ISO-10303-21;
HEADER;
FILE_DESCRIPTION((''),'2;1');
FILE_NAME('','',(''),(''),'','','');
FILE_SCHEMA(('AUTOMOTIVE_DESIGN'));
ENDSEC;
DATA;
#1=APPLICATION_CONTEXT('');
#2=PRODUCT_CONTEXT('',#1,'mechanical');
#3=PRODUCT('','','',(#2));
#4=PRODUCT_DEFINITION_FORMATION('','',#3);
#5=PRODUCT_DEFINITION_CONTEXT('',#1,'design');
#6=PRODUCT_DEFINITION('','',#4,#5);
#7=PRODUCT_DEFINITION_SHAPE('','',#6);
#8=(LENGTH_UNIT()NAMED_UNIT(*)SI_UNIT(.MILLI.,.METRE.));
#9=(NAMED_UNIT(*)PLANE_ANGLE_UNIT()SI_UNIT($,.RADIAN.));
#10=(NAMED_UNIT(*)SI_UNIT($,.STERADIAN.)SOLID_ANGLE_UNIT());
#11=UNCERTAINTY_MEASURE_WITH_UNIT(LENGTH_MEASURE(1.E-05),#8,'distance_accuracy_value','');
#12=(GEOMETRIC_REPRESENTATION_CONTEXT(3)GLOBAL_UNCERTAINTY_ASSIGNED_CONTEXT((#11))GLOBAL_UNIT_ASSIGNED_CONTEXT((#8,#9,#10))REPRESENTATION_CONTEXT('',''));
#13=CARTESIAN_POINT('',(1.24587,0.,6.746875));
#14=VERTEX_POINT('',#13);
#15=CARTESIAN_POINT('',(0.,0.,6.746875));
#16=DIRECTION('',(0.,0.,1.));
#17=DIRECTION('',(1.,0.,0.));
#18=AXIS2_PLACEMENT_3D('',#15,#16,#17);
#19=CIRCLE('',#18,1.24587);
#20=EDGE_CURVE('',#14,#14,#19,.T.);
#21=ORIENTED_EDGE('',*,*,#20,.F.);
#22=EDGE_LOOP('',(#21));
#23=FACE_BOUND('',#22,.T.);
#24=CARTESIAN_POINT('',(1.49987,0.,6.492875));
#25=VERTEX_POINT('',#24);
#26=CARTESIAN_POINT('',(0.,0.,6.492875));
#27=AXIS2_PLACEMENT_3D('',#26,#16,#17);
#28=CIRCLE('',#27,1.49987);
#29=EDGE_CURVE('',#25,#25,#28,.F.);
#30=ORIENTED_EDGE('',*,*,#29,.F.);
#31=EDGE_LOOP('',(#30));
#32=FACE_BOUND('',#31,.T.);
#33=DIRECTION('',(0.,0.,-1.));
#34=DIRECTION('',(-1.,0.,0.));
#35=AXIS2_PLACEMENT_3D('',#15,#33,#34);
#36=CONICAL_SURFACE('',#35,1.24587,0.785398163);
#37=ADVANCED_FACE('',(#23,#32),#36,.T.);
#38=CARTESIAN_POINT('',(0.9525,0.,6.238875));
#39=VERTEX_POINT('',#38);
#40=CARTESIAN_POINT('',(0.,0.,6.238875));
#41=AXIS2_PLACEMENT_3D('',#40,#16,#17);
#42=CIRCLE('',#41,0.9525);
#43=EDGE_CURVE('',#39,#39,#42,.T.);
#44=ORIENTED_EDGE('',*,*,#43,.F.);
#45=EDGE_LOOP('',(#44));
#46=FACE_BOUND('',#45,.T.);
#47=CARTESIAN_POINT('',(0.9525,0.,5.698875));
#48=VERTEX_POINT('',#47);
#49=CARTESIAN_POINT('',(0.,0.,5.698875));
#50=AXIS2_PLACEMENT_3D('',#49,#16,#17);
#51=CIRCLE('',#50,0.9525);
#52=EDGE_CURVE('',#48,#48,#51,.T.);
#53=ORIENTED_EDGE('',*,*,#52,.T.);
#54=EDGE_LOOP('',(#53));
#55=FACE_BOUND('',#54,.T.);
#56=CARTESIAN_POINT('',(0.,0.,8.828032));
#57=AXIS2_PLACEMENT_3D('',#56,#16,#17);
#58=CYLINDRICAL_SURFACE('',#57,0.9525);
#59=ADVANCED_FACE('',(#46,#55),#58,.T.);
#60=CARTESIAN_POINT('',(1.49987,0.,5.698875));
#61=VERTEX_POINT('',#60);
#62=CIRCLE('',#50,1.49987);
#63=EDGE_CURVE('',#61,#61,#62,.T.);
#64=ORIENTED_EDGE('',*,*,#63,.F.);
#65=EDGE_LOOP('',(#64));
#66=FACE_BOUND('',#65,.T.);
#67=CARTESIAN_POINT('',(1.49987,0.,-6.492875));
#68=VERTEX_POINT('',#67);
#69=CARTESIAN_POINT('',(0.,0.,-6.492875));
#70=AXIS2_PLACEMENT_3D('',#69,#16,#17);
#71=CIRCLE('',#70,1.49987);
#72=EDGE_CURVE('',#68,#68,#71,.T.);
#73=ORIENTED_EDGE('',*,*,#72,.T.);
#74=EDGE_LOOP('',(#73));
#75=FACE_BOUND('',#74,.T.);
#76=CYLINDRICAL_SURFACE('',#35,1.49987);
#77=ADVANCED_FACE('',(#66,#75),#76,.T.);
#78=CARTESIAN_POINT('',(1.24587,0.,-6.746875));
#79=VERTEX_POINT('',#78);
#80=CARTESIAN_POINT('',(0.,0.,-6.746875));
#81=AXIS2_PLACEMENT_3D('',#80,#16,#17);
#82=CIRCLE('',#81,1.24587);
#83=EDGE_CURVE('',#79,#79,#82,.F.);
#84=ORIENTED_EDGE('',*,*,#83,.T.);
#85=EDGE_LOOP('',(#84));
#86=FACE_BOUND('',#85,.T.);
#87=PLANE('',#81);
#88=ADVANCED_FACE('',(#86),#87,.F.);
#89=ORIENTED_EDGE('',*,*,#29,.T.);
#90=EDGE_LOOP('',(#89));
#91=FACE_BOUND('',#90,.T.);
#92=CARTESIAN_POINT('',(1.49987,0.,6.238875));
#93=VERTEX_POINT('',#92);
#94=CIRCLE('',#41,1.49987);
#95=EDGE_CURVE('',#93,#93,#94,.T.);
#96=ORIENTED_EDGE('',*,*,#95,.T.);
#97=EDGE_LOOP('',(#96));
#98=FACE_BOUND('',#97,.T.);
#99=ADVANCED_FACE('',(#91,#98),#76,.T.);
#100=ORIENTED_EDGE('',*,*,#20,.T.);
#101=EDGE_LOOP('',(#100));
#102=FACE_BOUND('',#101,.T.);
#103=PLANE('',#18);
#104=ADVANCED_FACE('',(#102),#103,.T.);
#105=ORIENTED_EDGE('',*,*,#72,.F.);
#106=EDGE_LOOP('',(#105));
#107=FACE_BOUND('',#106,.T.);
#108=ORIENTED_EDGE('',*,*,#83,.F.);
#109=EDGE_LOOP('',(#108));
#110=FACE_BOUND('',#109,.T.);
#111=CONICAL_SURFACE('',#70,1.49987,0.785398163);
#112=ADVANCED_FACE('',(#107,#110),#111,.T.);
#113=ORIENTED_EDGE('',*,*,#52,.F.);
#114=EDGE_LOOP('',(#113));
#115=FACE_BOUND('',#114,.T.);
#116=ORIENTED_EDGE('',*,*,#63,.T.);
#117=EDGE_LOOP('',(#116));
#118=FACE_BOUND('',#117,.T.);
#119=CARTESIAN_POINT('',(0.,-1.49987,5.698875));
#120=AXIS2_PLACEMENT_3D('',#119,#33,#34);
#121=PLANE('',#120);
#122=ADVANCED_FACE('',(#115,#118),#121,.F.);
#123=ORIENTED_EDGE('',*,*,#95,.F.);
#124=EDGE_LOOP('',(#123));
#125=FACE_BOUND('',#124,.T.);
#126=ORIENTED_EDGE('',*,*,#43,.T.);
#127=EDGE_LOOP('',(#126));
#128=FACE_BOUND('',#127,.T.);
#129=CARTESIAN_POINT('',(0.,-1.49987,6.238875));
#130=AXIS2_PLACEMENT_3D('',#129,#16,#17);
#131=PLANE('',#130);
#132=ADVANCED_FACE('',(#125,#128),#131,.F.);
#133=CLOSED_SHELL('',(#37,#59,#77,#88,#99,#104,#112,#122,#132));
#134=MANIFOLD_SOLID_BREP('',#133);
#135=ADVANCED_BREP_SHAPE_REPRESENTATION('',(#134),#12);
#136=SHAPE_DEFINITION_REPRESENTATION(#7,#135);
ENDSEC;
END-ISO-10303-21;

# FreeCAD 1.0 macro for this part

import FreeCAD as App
import Part
import Sketcher

V = App.Vector
Q = App.Units.Quantity


def edges_at(feature, points):
    """Names of the edges that pass closest to the given points."""
    edges = feature.Shape.Edges
    near = lambda p: min(range(len(edges)), key=lambda i: edges[i].distToShape(Part.Vertex(*p))[0])
    return sorted({f"Edge{near(p) + 1}" for p in points})


def add_polygon(sketch, points):
    """Adds a closed chain of lines whose ends are joined by coincident constraints."""
    first, n = sketch.GeometryCount, len(points)
    for a, b in zip(points, points[1:] + points[:1]):
        sketch.addGeometry(Part.LineSegment(App.Vector(*a, 0), App.Vector(*b, 0)), False)
    for i in range(n):
        sketch.addConstraint(Sketcher.Constraint("Coincident", first + i, 2, first + (i + 1) % n, 1))

doc = App.newDocument("Part")
body = doc.addObject("PartDesign::Body", "Body")

sketch1 = doc.addObject("Sketcher::SketchObject", "Sketch")
body.addObject(sketch1)
sketch1.AttachmentSupport = (doc.XY_Plane, [""])
sketch1.MapMode = "FlatFace"
sketch1.addGeometry(Part.Circle(V(0, 0, 0), V(0, 0, 1), 1.49987), False)
sketch1.addConstraint(Sketcher.Constraint("Coincident", 0, 3, -1, 1))
sketch1.addConstraint(Sketcher.Constraint("Diameter", 0, Q("0.1181 in")))
pad1 = doc.addObject("PartDesign::Pad", "Pad")
body.addObject(pad1)
pad1.Profile = sketch1
pad1.Length = Q("0.53125 in")
pad1.Midplane = True

sketch2 = doc.addObject("Sketcher::SketchObject", "Sketch001")
body.addObject(sketch2)
sketch2.AttachmentSupport = (doc.YZ_Plane, [""])
sketch2.MapMode = "FlatFace"
add_polygon(sketch2, [(-0.9525, 6.238875), (-1.49987, 6.238875), (-1.49987, 5.698875), (-0.9525, 5.698875)])
sketch2.addConstraint(Sketcher.Constraint("Horizontal", 0))
sketch2.addConstraint(Sketcher.Constraint("Vertical", 1))
sketch2.addConstraint(Sketcher.Constraint("Horizontal", 2))
sketch2.addConstraint(Sketcher.Constraint("Vertical", 3))
sketch2.addConstraint(Sketcher.Constraint("DistanceY", 1, 2, 1, 1, 0.54))
sketch2.addConstraint(Sketcher.Constraint("DistanceX", 2, 2, -1, 1, Q("0.0375 in")))
sketch2.addConstraint(Sketcher.Constraint("DistanceX", 0, 2, 0, 1, 0.54737))
sketch2.addConstraint(Sketcher.Constraint("DistanceY", -1, 1, 0, 2, 6.238875))
groove = doc.addObject("PartDesign::Groove", "Groove")
body.addObject(groove)
groove.Profile = sketch2
groove.ReferenceAxis = (sketch2, ["V_Axis"])
groove.Angle = 360
doc.recompute()

chamfer = doc.addObject("PartDesign::Chamfer", "Chamfer")
body.addObject(chamfer)
chamfer.Base = (groove, edges_at(groove, [(-1.5, 0, -6.747), (-1.5, 0, 6.747)]))
chamfer.Size = Q("0.01 in")

doc.recompute()
